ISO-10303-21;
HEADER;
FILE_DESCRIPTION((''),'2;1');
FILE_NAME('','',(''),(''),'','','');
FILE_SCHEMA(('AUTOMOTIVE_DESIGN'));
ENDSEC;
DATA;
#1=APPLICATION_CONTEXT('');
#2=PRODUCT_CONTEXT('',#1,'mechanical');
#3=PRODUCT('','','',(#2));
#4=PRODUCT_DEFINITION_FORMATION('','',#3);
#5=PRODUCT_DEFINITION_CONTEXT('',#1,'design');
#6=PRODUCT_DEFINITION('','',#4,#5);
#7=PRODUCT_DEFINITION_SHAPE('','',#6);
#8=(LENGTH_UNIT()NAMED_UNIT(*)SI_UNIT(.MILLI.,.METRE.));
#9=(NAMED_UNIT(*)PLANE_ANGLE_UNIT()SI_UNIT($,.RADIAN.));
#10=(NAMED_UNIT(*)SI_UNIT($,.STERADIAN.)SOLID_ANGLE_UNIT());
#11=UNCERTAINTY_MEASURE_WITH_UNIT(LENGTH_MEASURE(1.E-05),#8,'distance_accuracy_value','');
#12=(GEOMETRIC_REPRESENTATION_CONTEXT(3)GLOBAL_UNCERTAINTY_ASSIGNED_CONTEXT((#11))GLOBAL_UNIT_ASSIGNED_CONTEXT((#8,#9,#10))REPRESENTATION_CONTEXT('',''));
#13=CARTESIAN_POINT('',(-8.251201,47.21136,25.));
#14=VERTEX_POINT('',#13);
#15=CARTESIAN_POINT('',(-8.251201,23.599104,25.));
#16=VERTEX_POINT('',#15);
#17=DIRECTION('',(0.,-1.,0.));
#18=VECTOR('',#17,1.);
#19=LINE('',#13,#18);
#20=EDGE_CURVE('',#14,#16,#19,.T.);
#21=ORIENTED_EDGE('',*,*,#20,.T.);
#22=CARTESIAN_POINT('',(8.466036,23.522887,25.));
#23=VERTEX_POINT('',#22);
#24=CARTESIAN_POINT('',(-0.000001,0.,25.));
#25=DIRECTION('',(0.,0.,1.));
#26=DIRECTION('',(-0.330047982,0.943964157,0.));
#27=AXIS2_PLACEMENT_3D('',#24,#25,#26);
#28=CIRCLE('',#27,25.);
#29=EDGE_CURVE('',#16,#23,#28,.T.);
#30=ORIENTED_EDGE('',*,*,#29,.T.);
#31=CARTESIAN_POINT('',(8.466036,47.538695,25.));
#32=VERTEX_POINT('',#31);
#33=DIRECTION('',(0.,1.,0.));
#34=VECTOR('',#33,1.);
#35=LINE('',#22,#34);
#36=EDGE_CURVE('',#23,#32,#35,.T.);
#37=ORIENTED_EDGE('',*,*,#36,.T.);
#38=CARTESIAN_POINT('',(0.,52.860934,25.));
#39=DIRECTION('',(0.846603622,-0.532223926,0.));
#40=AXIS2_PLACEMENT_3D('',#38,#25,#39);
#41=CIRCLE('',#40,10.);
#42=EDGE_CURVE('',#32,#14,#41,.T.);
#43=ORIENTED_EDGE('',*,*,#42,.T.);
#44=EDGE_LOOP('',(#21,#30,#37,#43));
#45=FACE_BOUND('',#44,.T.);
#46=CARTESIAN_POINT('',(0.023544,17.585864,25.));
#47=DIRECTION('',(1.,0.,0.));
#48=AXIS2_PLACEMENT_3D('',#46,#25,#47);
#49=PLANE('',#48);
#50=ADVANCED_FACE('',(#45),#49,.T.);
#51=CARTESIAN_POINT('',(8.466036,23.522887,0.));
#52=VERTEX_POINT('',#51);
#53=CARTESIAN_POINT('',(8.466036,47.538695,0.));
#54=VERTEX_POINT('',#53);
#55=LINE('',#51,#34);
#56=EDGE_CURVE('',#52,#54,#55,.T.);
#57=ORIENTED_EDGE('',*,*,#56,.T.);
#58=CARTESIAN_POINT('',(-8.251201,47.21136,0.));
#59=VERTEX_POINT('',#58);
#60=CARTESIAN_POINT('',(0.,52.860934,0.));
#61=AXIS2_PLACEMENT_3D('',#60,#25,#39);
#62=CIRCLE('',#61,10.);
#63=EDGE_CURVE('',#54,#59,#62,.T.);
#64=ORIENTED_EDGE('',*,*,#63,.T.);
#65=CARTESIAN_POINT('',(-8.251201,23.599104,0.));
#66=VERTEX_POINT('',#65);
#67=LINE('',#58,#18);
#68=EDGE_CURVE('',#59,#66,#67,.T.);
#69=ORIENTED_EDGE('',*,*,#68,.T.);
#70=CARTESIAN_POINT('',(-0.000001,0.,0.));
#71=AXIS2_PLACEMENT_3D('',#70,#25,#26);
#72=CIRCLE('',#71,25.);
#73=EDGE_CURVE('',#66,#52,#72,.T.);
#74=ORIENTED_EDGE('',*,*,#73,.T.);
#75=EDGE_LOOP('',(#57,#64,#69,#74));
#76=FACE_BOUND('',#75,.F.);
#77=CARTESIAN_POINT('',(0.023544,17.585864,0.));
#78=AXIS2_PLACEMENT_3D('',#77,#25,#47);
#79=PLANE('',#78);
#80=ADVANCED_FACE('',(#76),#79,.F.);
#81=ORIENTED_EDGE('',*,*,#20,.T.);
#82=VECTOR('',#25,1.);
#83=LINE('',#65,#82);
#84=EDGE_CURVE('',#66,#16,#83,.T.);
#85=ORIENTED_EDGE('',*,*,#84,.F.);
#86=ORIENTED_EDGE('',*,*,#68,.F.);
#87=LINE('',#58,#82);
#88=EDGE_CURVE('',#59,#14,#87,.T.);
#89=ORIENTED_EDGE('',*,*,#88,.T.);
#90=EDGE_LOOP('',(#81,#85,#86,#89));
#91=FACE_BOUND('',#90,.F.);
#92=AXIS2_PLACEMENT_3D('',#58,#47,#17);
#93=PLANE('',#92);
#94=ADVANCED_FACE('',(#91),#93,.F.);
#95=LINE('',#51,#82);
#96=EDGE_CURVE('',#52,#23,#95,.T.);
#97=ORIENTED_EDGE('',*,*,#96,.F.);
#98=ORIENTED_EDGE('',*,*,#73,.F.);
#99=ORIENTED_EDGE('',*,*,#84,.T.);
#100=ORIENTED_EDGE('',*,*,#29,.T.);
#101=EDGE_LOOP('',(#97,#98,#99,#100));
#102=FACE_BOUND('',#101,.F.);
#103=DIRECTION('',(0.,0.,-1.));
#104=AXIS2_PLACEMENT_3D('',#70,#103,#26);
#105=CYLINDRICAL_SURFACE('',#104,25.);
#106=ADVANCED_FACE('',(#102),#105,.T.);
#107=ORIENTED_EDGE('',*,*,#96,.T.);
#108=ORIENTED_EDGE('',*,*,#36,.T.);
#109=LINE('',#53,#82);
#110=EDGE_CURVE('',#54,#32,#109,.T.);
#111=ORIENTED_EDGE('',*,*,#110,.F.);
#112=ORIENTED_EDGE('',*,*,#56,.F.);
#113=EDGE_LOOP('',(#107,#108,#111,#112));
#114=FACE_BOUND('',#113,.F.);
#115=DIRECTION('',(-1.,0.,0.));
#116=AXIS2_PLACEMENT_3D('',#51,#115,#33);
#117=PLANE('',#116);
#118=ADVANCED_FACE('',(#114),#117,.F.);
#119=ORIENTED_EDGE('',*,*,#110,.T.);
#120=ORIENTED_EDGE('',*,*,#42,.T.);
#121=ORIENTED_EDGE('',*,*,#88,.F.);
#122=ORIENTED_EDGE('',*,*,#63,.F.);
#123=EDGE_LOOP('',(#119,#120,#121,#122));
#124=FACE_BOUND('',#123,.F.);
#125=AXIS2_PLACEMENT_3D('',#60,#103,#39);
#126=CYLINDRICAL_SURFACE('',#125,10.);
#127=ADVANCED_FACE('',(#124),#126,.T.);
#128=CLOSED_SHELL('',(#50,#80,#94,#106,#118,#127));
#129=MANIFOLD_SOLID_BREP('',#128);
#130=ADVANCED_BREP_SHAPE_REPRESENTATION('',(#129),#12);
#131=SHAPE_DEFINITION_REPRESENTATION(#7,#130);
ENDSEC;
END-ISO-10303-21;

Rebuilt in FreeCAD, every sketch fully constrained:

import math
import FreeCAD as App
import Part
import Sketcher
from FreeCAD import Vector

doc = App.newDocument("Part")
body = doc.addObject("PartDesign::Body", "Body")

# Sketch on XY plane
sketch1 = body.newObject("Sketcher::SketchObject", "Sketch")
sketch1.AttachmentSupport = (doc.getObject("XY_Plane"), [""])
sketch1.MapMode = "FlatFace"
sketch1.addGeometry(Part.LineSegment(Vector(-8, 47, 0), Vector(-8, 24, 0)), False)
sketch1.addGeometry(Part.ArcOfCircle(Part.Circle(Vector(0, 0, 0), Vector(0, 0, 1), 25), math.radians(109), math.radians(430)), False)
sketch1.addGeometry(Part.LineSegment(Vector(8, 24, 0), Vector(8, 48, 0)), False)
sketch1.addGeometry(Part.ArcOfCircle(Part.Circle(Vector(0, 53, 0), Vector(0, 0, 1), 10), math.radians(-32), math.radians(214)), False)
sketch1.addConstraint(Sketcher.Constraint("Coincident", 0, 2, 1, 1))
sketch1.addConstraint(Sketcher.Constraint("Coincident", 1, 2, 2, 1))
sketch1.addConstraint(Sketcher.Constraint("Coincident", 2, 2, 3, 1))
sketch1.addConstraint(Sketcher.Constraint("Coincident", 3, 2, 0, 1))
sketch1.addConstraint(Sketcher.Constraint("Vertical", 0))
sketch1.addConstraint(Sketcher.Constraint("Vertical", 2))
sketch1.addConstraint(Sketcher.Constraint("Coincident", 1, 3, -1, 1))
sketch1.addConstraint(Sketcher.Constraint("PointOnObject", 3, 3, -2))
sketch1.addConstraint(Sketcher.Constraint("Radius", 1, 25.0))
sketch1.addConstraint(Sketcher.Constraint("Radius", 3, 10.0))
sketch1.addConstraint(Sketcher.Constraint("DistanceX", 0, 2, -1, 1, 8.251201))
sketch1.addConstraint(Sketcher.Constraint("DistanceY", 0, 2, 0, 1, 23.612256))
sketch1.addConstraint(Sketcher.Constraint("DistanceY", 2, 1, 2, 2, 24.015808))
pad1 = body.newObject("PartDesign::Pad", "Pad")
pad1.Profile = sketch1
pad1.Length = 25

doc.recompute()
